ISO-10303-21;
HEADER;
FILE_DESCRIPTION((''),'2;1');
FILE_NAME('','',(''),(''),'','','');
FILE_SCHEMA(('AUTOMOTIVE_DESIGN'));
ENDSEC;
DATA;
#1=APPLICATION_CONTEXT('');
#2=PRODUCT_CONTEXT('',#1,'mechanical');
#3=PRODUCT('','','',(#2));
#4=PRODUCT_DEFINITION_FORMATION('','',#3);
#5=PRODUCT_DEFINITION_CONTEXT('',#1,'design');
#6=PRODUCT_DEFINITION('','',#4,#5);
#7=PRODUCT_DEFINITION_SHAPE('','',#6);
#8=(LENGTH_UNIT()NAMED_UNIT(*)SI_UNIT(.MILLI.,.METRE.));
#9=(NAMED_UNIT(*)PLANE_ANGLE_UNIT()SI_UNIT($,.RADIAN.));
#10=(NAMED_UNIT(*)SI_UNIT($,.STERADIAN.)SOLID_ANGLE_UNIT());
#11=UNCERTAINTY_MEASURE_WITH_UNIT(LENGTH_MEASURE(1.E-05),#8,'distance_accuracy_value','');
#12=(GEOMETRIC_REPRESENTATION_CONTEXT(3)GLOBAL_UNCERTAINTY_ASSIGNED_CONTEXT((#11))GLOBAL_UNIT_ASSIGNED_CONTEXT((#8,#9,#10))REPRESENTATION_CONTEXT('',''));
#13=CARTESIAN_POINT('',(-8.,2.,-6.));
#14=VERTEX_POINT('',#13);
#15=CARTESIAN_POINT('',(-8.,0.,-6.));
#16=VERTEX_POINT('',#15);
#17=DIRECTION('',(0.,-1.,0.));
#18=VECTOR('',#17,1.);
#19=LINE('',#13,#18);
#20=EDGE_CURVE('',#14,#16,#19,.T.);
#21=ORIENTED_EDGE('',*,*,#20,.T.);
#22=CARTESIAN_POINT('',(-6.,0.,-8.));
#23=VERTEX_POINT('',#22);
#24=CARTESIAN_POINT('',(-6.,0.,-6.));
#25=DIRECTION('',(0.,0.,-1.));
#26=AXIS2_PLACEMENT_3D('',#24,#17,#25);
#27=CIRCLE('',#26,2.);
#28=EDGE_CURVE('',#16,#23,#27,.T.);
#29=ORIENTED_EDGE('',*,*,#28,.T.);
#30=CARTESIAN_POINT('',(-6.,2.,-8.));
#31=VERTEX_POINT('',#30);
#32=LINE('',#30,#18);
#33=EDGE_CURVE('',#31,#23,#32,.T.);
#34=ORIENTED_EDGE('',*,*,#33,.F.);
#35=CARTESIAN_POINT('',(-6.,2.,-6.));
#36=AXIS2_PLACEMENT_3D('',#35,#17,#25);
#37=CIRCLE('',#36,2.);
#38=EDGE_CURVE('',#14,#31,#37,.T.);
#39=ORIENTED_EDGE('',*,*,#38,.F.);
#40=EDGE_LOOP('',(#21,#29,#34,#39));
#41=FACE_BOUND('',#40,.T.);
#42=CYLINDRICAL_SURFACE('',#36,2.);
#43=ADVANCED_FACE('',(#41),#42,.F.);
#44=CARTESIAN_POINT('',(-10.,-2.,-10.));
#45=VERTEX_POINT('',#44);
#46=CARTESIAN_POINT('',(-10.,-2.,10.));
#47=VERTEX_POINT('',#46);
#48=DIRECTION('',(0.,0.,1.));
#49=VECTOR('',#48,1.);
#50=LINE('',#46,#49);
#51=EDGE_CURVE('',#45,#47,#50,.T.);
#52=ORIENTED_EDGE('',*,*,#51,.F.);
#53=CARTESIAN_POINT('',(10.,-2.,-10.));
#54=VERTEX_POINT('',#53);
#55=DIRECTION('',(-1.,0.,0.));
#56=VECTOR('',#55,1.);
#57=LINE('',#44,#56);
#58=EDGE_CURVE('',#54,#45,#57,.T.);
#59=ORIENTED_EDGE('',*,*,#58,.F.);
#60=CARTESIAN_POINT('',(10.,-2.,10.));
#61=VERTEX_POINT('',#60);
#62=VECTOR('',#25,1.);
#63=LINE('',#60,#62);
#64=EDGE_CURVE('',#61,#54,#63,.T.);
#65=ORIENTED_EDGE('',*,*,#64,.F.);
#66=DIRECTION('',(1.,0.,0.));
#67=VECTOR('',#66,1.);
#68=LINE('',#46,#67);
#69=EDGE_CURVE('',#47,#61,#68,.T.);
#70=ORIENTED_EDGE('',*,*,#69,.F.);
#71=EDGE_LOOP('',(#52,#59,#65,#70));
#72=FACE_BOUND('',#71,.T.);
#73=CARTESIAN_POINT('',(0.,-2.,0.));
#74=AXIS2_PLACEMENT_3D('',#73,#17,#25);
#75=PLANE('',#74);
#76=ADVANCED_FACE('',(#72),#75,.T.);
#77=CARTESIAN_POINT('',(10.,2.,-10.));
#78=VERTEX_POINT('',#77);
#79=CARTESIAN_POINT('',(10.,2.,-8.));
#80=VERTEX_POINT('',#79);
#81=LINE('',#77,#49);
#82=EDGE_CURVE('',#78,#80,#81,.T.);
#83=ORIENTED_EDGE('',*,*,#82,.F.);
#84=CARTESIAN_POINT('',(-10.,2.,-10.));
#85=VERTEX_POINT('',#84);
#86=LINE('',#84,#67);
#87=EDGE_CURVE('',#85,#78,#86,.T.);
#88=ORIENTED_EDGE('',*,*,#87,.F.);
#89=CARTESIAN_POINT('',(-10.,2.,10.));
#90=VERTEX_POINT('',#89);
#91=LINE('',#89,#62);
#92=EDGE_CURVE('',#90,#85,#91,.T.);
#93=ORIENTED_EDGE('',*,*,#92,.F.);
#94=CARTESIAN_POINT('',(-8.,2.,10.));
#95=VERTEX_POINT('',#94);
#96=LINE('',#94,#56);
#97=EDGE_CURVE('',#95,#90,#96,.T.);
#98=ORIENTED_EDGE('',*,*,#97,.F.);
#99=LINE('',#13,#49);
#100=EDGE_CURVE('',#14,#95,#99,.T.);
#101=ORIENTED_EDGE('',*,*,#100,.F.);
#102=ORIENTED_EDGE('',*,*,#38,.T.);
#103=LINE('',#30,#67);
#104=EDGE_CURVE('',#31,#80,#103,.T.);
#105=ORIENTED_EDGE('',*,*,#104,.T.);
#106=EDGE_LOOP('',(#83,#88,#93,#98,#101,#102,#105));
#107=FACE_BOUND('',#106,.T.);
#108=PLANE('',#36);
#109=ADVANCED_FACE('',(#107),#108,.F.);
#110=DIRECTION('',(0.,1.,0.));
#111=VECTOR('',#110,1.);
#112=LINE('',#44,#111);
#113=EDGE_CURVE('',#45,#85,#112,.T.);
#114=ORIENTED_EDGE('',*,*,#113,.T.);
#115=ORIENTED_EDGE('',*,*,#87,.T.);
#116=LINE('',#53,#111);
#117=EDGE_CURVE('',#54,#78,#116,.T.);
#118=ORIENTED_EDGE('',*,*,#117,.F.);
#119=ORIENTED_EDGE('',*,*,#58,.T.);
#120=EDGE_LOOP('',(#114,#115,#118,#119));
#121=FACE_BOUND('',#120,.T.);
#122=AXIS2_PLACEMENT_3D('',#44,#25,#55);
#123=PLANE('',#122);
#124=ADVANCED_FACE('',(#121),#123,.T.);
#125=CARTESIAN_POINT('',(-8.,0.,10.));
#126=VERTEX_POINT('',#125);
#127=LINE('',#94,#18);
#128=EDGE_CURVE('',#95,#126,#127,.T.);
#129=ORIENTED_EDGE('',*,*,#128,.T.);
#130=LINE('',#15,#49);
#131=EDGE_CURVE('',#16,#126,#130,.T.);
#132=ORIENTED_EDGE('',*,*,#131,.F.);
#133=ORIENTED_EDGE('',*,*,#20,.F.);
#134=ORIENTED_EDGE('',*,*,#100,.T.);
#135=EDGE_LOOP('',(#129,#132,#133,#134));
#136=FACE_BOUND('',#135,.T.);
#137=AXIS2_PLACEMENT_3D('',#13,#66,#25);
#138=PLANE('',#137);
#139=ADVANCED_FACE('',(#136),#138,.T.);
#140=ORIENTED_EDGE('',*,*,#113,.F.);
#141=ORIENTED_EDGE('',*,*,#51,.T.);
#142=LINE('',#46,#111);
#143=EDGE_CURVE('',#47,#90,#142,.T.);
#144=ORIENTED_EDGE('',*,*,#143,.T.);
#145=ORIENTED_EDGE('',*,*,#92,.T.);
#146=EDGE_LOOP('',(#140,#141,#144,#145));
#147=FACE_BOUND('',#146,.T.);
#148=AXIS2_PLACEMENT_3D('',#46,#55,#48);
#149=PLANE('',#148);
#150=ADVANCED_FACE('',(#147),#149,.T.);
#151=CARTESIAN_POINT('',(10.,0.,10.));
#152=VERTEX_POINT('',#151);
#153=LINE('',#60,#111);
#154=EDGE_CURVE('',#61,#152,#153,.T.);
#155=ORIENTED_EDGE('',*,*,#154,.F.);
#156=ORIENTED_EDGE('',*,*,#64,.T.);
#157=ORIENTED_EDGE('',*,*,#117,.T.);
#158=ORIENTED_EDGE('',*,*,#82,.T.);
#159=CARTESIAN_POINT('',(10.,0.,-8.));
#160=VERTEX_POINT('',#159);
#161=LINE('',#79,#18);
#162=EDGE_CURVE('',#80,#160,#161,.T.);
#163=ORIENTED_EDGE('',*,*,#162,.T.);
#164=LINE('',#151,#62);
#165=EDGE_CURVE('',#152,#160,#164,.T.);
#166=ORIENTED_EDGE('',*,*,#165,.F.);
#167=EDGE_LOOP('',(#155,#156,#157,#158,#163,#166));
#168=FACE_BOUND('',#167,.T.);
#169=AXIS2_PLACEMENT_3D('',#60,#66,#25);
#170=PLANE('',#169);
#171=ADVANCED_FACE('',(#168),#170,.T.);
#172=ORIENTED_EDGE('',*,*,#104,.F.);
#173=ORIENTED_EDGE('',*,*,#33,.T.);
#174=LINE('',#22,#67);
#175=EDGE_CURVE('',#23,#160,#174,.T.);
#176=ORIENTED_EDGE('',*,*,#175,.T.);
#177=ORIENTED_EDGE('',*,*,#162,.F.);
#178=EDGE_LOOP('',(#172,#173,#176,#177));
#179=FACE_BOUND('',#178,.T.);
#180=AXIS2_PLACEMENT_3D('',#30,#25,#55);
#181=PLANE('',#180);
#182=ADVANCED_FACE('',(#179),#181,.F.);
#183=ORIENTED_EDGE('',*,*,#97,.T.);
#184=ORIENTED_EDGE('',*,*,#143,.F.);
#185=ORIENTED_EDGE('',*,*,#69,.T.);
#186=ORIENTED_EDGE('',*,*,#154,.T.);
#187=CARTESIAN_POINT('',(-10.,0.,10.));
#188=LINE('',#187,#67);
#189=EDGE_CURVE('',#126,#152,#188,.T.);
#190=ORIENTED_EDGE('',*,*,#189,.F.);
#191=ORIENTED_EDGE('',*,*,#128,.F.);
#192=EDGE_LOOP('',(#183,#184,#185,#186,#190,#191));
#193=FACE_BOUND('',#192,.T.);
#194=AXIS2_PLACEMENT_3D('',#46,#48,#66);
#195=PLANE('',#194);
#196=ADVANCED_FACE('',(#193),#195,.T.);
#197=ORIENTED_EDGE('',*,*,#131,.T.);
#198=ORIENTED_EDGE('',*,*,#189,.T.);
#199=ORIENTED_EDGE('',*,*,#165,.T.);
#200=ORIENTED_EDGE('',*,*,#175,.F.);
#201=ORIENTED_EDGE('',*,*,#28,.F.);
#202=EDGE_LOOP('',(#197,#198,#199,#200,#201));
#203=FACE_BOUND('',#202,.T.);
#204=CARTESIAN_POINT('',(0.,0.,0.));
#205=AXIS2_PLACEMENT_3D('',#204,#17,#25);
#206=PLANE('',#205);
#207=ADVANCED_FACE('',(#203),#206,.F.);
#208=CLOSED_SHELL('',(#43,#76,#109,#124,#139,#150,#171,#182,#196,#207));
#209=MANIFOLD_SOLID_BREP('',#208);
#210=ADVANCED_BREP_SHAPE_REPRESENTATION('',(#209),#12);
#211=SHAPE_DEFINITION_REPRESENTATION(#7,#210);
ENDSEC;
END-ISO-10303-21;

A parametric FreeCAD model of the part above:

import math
import FreeCAD as App
import Part
import Sketcher
from FreeCAD import Vector
Q = App.Units.Quantity

doc = App.newDocument("Part")
body = doc.addObject("PartDesign::Body", "Body")

sketch1 = doc.addObject("Sketcher::SketchObject", "Sketch")
body.addObject(sketch1)
sketch1.AttachmentSupport = (doc.XZ_Plane, [""])
sketch1.MapMode = "FlatFace"
sketch1.addGeometry(Part.LineSegment(Vector(-10, -10, 0), Vector(-10, 10, 0)), False)
sketch1.addGeometry(Part.LineSegment(Vector(-10, 10, 0), Vector(10, 10, 0)), False)
sketch1.addGeometry(Part.LineSegment(Vector(10, 10, 0), Vector(10, -10, 0)), False)
sketch1.addGeometry(Part.LineSegment(Vector(10, -10, 0), Vector(-10, -10, 0)), False)
sketch1.addConstraint(Sketcher.Constraint("Coincident", 0, 2, 1, 1))
sketch1.addConstraint(Sketcher.Constraint("Coincident", 1, 2, 2, 1))
sketch1.addConstraint(Sketcher.Constraint("Coincident", 2, 2, 3, 1))
sketch1.addConstraint(Sketcher.Constraint("Coincident", 3, 2, 0, 1))
sketch1.addConstraint(Sketcher.Constraint("Vertical", 0))
sketch1.addConstraint(Sketcher.Constraint("Horizontal", 1))
sketch1.addConstraint(Sketcher.Constraint("Vertical", 2))
sketch1.addConstraint(Sketcher.Constraint("Horizontal", 3))
sketch1.addConstraint(Sketcher.Constraint("Symmetric", 0, 2, 2, 2, -1, 1))
sketch1.addConstraint(Sketcher.Constraint("Equal", 3, 0))
sketch1.addConstraint(Sketcher.Constraint("DistanceX", 1, 1, 1, 2, Q("20 mm")))
pad1 = doc.addObject("PartDesign::Pad", "Pad")
body.addObject(pad1)
pad1.Profile = sketch1
pad1.Length = 2

sketch2 = doc.addObject("Sketcher::SketchObject", "Sketch001")
body.addObject(sketch2)
sketch2.AttachmentSupport = (doc.XZ_Plane, [""])
sketch2.MapMode = "FlatFace"
sketch2.addGeometry(Part.LineSegment(Vector(-6, -8, 0), Vector(10, -8, 0)), False)
sketch2.addGeometry(Part.LineSegment(Vector(10, -8, 0), Vector(10, -10, 0)), False)
sketch2.addGeometry(Part.LineSegment(Vector(10, -10, 0), Vector(-10, -10, 0)), False)
sketch2.addGeometry(Part.LineSegment(Vector(-10, -10, 0), Vector(-10, 10, 0)), False)
sketch2.addGeometry(Part.LineSegment(Vector(-10, 10, 0), Vector(-8, 10, 0)), False)
sketch2.addGeometry(Part.LineSegment(Vector(-8, 10, 0), Vector(-8, -6, 0)), False)
sketch2.addGeometry(Part.ArcOfCircle(Part.Circle(Vector(-6, -6, 0), Vector(0, 0, 1), 2), math.radians(-180), math.radians(-90)), False)
sketch2.addConstraint(Sketcher.Constraint("Coincident", 0, 2, 1, 1))
sketch2.addConstraint(Sketcher.Constraint("Coincident", 1, 2, 2, 1))
sketch2.addConstraint(Sketcher.Constraint("Coincident", 2, 2, 3, 1))
sketch2.addConstraint(Sketcher.Constraint("Coincident", 3, 2, 4, 1))
sketch2.addConstraint(Sketcher.Constraint("Coincident", 4, 2, 5, 1))
sketch2.addConstraint(Sketcher.Constraint("Tangent", 5, 2, 6, 1))
sketch2.addConstraint(Sketcher.Constraint("Tangent", 6, 2, 0, 1))
sketch2.addConstraint(Sketcher.Constraint("Horizontal", 0))
sketch2.addConstraint(Sketcher.Constraint("Vertical", 1))
sketch2.addConstraint(Sketcher.Constraint("Horizontal", 2))
sketch2.addConstraint(Sketcher.Constraint("Vertical", 3))
sketch2.addConstraint(Sketcher.Constraint("Horizontal", 4))
sketch2.addConstraint(Sketcher.Constraint("Vertical", 5))
sketch2.addConstraint(Sketcher.Constraint("Symmetric", 1, 2, 3, 2, -1, 1))
sketch2.addConstraint(Sketcher.Constraint("Equal", 4, 1))
sketch2.addConstraint(Sketcher.Constraint("Equal", 2, 3))
sketch2.addConstraint(Sketcher.Constraint("Radius", 6, Q("2 mm")))
sketch2.addConstraint(Sketcher.Constraint("DistanceX", 0, 1, 0, 2, Q("16 mm")))
sketch2.addConstraint(Sketcher.Constraint("DistanceX", 2, 2, 2, 1, Q("20 mm")))
pad2 = doc.addObject("PartDesign::Pad", "Pad001")
body.addObject(pad2)
pad2.Profile = sketch2
pad2.Length = 2
pad2.Reversed = True

doc.recompute()
